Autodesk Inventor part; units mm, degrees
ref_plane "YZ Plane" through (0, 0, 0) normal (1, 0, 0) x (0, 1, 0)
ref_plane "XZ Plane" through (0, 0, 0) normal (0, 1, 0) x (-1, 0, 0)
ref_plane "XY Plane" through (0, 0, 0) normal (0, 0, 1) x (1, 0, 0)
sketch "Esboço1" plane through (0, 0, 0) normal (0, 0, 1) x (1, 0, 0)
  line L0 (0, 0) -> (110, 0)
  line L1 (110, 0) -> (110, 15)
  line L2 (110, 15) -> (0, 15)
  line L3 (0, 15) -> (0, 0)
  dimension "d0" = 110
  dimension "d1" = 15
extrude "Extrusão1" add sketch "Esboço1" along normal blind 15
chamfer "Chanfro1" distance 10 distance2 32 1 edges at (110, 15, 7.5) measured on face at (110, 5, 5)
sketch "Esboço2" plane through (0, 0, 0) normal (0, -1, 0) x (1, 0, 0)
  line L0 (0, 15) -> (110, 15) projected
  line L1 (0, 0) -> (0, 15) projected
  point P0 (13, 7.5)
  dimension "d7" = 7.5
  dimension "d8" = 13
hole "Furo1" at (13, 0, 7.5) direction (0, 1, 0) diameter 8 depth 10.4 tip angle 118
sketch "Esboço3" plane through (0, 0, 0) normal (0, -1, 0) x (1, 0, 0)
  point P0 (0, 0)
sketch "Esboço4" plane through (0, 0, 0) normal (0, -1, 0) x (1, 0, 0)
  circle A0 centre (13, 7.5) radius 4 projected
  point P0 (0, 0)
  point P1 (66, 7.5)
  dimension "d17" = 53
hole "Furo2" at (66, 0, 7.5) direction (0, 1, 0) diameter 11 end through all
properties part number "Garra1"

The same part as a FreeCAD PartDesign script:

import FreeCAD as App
import Part
import Sketcher

V = App.Vector
Q = App.Units.Quantity


def edges_at(feature, points):
    """Names of the edges that pass closest to the given points."""
    edges = feature.Shape.Edges
    near = lambda p: min(range(len(edges)), key=lambda i: edges[i].distToShape(Part.Vertex(*p))[0])
    return sorted({f"Edge{near(p) + 1}" for p in points})


def add_polygon(sketch, points):
    """Adds a closed chain of lines whose ends are joined by coincident constraints."""
    first, n = sketch.GeometryCount, len(points)
    for a, b in zip(points, points[1:] + points[:1]):
        sketch.addGeometry(Part.LineSegment(App.Vector(*a, 0), App.Vector(*b, 0)), False)
    for i in range(n):
        sketch.addConstraint(Sketcher.Constraint("Coincident", first + i, 2, first + (i + 1) % n, 1))

doc = App.newDocument("Part")
body = doc.addObject("PartDesign::Body", "Body")

# Sketch on XY plane
sketch1 = body.newObject("Sketcher::SketchObject", "Sketch")
sketch1.AttachmentSupport = (doc.getObject("XY_Plane"), [""])
sketch1.MapMode = "FlatFace"
add_polygon(sketch1, [(0, 15), (0, 0), (110, 0), (110, 15)])  # lines 0-3
sketch1.addConstraint([
    Sketcher.Constraint("Vertical", 0),
    Sketcher.Constraint("Horizontal", 1),
    Sketcher.Constraint("Vertical", 2),
    Sketcher.Constraint("Horizontal", 3),
    Sketcher.Constraint("Coincident", 0, 2, -1, 1),
    Sketcher.Constraint("DistanceX", 1, 1, 1, 2, Q("110 mm")),
    Sketcher.Constraint("DistanceY", 0, 2, 0, 1, Q("15 mm")),
])
pad1 = body.newObject("PartDesign::Pad", "Pad")
pad1.Profile = sketch1
pad1.Length = 15
doc.recompute()

chamfer = body.newObject("PartDesign::Chamfer", "Chamfer")
chamfer.Base = (pad1, edges_at(pad1, [(110, 15, 7.5)]))
chamfer.ChamferType = "Two distances"
chamfer.Size = 10
chamfer.Size2 = 32

# Sketch on XZ plane
sketch2 = body.newObject("Sketcher::SketchObject", "Sketch001")
sketch2.AttachmentSupport = (doc.getObject("XZ_Plane"), [""])
sketch2.MapMode = "FlatFace"
sketch2.addGeometry(Part.Circle(V(13, 7.5, 0), V(0, 0, 1), 4), False)
sketch2.addConstraint([
    Sketcher.Constraint("Diameter", 0, Q("8 mm")),
    Sketcher.Constraint("DistanceX", -1, 1, 0, 3, Q("13 mm")),
    Sketcher.Constraint("DistanceY", -1, 1, 0, 3, Q("7.5 mm")),
])
doc.recompute()
hole = body.newObject("PartDesign::Hole", "Hole")
hole.Profile = sketch2
hole.ThreadType = "None"
hole.Diameter = 8
hole.DepthType = "Dimension"
hole.Depth = 10.4
hole.DrillPoint = "Angled"
hole.DrillPointAngle = 118

# Sketch on XZ plane
sketch3 = body.newObject("Sketcher::SketchObject", "Sketch002")
sketch3.AttachmentSupport = (doc.getObject("XZ_Plane"), [""])
sketch3.MapMode = "FlatFace"
sketch3.addGeometry(Part.Circle(V(66, 8, 0), V(0, 0, 1), 6), False)
sketch3.addConstraint([
    Sketcher.Constraint("Diameter", 0, Q("11 mm")),
    Sketcher.Constraint("DistanceX", -1, 1, 0, 3, Q("66 mm")),
    Sketcher.Constraint("DistanceY", -1, 1, 0, 3, Q("7.5 mm")),
])
doc.recompute()
hole2 = body.newObject("PartDesign::Hole", "Hole001")
hole2.Profile = sketch3
hole2.ThreadType = "None"
hole2.Diameter = 11
hole2.DepthType = "ThroughAll"

doc.recompute()
